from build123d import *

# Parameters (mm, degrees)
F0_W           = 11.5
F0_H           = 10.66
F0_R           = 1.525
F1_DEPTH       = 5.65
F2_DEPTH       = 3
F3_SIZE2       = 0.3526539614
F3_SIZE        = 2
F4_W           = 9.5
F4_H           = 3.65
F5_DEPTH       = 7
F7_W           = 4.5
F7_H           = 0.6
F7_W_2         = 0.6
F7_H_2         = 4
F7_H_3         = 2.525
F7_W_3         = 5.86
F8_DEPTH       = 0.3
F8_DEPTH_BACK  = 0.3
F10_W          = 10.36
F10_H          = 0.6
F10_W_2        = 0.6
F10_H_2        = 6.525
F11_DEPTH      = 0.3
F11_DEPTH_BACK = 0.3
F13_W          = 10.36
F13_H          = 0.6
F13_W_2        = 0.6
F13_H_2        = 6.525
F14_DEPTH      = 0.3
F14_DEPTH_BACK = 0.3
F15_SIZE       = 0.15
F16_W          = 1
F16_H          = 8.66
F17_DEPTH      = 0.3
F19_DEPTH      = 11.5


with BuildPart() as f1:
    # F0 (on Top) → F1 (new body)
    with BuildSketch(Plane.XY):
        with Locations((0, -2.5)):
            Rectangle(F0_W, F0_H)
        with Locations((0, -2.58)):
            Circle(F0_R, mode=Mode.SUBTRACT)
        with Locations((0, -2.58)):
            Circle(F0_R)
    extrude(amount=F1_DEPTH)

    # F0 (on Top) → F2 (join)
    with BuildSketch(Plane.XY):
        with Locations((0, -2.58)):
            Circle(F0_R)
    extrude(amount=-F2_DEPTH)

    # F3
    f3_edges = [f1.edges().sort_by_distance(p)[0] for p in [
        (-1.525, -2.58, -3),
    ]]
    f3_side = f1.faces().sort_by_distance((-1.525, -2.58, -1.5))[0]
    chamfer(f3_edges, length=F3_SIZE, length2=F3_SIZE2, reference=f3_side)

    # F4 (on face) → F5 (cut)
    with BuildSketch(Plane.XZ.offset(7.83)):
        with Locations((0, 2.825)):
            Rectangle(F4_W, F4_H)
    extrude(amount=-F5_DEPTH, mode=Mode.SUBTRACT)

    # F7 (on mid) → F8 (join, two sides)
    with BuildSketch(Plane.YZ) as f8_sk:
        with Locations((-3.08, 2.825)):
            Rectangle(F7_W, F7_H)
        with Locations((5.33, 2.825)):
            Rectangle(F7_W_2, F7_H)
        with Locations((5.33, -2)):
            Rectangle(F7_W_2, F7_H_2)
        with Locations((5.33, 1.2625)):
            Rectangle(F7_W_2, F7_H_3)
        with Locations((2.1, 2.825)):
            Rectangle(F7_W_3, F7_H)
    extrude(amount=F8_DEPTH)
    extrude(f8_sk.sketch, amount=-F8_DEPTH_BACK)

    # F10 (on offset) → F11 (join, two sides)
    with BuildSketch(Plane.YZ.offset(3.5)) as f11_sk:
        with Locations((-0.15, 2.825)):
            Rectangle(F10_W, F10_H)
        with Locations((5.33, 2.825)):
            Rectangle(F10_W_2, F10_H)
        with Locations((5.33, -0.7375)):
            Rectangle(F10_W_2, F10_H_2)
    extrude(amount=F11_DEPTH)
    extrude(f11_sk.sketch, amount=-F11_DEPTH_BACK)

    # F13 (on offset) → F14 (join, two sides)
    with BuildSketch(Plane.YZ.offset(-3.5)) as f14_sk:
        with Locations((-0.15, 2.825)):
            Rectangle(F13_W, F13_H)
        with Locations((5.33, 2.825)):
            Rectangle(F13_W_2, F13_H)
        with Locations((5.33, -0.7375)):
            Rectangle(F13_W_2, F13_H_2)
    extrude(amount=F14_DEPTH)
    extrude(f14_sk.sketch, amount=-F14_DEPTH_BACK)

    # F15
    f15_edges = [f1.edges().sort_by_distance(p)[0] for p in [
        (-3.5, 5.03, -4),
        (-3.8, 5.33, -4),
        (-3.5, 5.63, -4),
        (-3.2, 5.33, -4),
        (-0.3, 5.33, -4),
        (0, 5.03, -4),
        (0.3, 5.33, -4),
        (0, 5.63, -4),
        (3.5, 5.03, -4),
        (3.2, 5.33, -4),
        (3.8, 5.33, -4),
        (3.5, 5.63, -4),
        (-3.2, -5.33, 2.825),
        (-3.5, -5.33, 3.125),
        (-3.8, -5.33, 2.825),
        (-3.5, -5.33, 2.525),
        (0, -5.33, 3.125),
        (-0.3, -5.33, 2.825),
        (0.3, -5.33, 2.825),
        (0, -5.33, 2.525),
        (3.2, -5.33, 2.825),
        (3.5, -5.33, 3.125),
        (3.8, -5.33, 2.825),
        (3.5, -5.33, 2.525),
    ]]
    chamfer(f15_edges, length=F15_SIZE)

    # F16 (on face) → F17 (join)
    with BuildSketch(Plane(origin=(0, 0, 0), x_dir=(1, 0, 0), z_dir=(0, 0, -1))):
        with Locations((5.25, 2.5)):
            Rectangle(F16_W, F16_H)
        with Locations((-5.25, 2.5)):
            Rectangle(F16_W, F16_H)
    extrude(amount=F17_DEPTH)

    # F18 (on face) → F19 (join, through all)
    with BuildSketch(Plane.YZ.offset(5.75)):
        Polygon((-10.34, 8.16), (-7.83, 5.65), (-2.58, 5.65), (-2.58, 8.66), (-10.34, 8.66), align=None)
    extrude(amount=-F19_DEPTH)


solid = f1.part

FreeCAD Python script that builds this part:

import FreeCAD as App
import Part
import Sketcher
Q = App.Units.Quantity


def edges_at(feature, points):
    """Names of the edges that pass closest to the given points."""
    edges = feature.Shape.Edges
    near = lambda p: min(range(len(edges)), key=lambda i: edges[i].distToShape(Part.Vertex(*p))[0])
    return sorted({f"Edge{near(p) + 1}" for p in points})


def add_polygon(sketch, points):
    """Adds a closed chain of lines whose ends are joined by coincident constraints."""
    first, n = sketch.GeometryCount, len(points)
    for a, b in zip(points, points[1:] + points[:1]):
        sketch.addGeometry(Part.LineSegment(App.Vector(*a, 0), App.Vector(*b, 0)), False)
    for i in range(n):
        sketch.addConstraint(Sketcher.Constraint("Coincident", first + i, 2, first + (i + 1) % n, 1))

doc = App.newDocument("Part")
body = doc.addObject("PartDesign::Body", "Body")

# Sketch on XY plane
sketch1 = doc.addObject("Sketcher::SketchObject", "Sketch")
body.addObject(sketch1)
sketch1.AttachmentSupport = (doc.XY_Plane, [""])
sketch1.MapMode = "FlatFace"
add_polygon(sketch1, [(-6, 3), (-6, -8), (6, -8), (6, 3)])  # lines 0-3
sketch1.addConstraint(Sketcher.Constraint("Vertical", 0))
sketch1.addConstraint(Sketcher.Constraint("Horizontal", 1))
sketch1.addConstraint(Sketcher.Constraint("Vertical", 2))
sketch1.addConstraint(Sketcher.Constraint("Horizontal", 3))
sketch1.addConstraint(Sketcher.Constraint("DistanceX", 1, 1, 1, 2, 11.5))
sketch1.addConstraint(Sketcher.Constraint("DistanceY", 0, 2, 0, 1, 10.66))
sketch1.addConstraint(Sketcher.Constraint("DistanceX", 0, 2, -1, 1, 5.75))
sketch1.addConstraint(Sketcher.Constraint("DistanceY", 0, 2, -1, 1, 7.83))
pad1 = doc.addObject("PartDesign::Pad", "Pad")
body.addObject(pad1)
pad1.Profile = sketch1
pad1.Length = 5.65

# Sketch on XY plane
sketch2 = doc.addObject("Sketcher::SketchObject", "Sketch001")
body.addObject(sketch2)
sketch2.AttachmentSupport = (doc.XY_Plane, [""])
sketch2.MapMode = "FlatFace"
sketch2.addGeometry(Part.Circle(App.Vector(0, -2.6, 0), App.Vector(0, 0, 1), 1.5), False)
sketch2.addConstraint(Sketcher.Constraint("PointOnObject", 0, 3, -2))
sketch2.addConstraint(Sketcher.Constraint("Diameter", 0, 3.05))
sketch2.addConstraint(Sketcher.Constraint("DistanceY", 0, 3, -1, 1, 2.58))
pad2 = doc.addObject("PartDesign::Pad", "Pad001")
body.addObject(pad2)
pad2.Profile = sketch2
pad2.Length = 3
pad2.Reversed = True
doc.recompute()

chamfer = doc.addObject("PartDesign::Chamfer", "Chamfer")
body.addObject(chamfer)
chamfer.Base = (pad2, edges_at(pad2, [(-1.525, -2.58, -3)]))
chamfer.ChamferType = "Two distances"
chamfer.Size = 2
chamfer.Size2 = 0.352654

# Sketch on XZ plane
sketch3 = doc.addObject("Sketcher::SketchObject", "Sketch002")
body.addObject(sketch3)
sketch3.AttachmentSupport = (doc.XZ_Plane, [""])
sketch3.MapMode = "FlatFace"
sketch3.AttachmentOffset = App.Placement(App.Vector(0, 0, 7.83), App.Rotation())
add_polygon(sketch3, [(-4.8, 4.7), (-4.8, 1), (4.8, 1), (4.8, 4.7)])  # lines 0-3
sketch3.addConstraint(Sketcher.Constraint("Vertical", 0))
sketch3.addConstraint(Sketcher.Constraint("Horizontal", 1))
sketch3.addConstraint(Sketcher.Constraint("Vertical", 2))
sketch3.addConstraint(Sketcher.Constraint("Horizontal", 3))
sketch3.addConstraint(Sketcher.Constraint("DistanceX", 1, 1, 1, 2, 9.5))
sketch3.addConstraint(Sketcher.Constraint("DistanceY", -1, 1, 0, 2, 1.0))
sketch3.addConstraint(Sketcher.Constraint("DistanceY", 0, 2, 0, 1, 3.65))
sketch3.addConstraint(Sketcher.Constraint("DistanceX", 0, 2, -1, 1, 4.75))
pocket1 = doc.addObject("PartDesign::Pocket", "Pocket")
body.addObject(pocket1)
pocket1.Profile = sketch3
pocket1.Length = 7

# Sketch on YZ plane
sketch4 = doc.addObject("Sketcher::SketchObject", "Sketch003")
body.addObject(sketch4)
sketch4.AttachmentSupport = (doc.YZ_Plane, [""])
sketch4.MapMode = "FlatFace"
add_polygon(sketch4, [(-5.3, 3.1), (-5.3, 2.5), (5, 2.5), (5, -4), (5.6, -4), (5.6, 3.1)])  # lines 0-5
sketch4.addConstraint(Sketcher.Constraint("Vertical", 0))
sketch4.addConstraint(Sketcher.Constraint("Horizontal", 1))
sketch4.addConstraint(Sketcher.Constraint("Vertical", 2))
sketch4.addConstraint(Sketcher.Constraint("Horizontal", 3))
sketch4.addConstraint(Sketcher.Constraint("Vertical", 4))
sketch4.addConstraint(Sketcher.Constraint("Horizontal", 5))
sketch4.addConstraint(Sketcher.Constraint("Equal", 3, 0))
sketch4.addConstraint(Sketcher.Constraint("DistanceX", 3, 1, 3, 2, 0.6))
sketch4.addConstraint(Sketcher.Constraint("DistanceY", 2, 2, -1, 1, 4.0))
sketch4.addConstraint(Sketcher.Constraint("DistanceX", 1, 1, 1, 2, 10.36))
sketch4.addConstraint(Sketcher.Constraint("DistanceY", 2, 2, 2, 1, 6.525))
sketch4.addConstraint(Sketcher.Constraint("DistanceX", 0, 2, -1, 1, 5.33))
pad3 = doc.addObject("PartDesign::Pad", "Pad002")
body.addObject(pad3)
pad3.Profile = sketch4
pad3.Type = "TwoLengths"
pad3.Length = 0.3
pad3.Length2 = 0.3

# Sketch on YZ plane
sketch5 = doc.addObject("Sketcher::SketchObject", "Sketch004")
body.addObject(sketch5)
sketch5.AttachmentSupport = (doc.YZ_Plane, [""])
sketch5.MapMode = "FlatFace"
sketch5.AttachmentOffset = App.Placement(App.Vector(0, 0, 3.5), App.Rotation())
add_polygon(sketch5, [(-5.3, 3.1), (-5.3, 2.5), (5, 2.5), (5, -4), (5.6, -4), (5.6, 3.1)])  # lines 0-5
sketch5.addConstraint(Sketcher.Constraint("Vertical", 0))
sketch5.addConstraint(Sketcher.Constraint("Horizontal", 1))
sketch5.addConstraint(Sketcher.Constraint("Vertical", 2))
sketch5.addConstraint(Sketcher.Constraint("Horizontal", 3))
sketch5.addConstraint(Sketcher.Constraint("Vertical", 4))
sketch5.addConstraint(Sketcher.Constraint("Horizontal", 5))
sketch5.addConstraint(Sketcher.Constraint("Equal", 3, 0))
sketch5.addConstraint(Sketcher.Constraint("DistanceX", 3, 1, 3, 2, 0.6))
sketch5.addConstraint(Sketcher.Constraint("DistanceY", 2, 2, -1, 1, 4.0))
sketch5.addConstraint(Sketcher.Constraint("DistanceX", 1, 1, 1, 2, 10.36))
sketch5.addConstraint(Sketcher.Constraint("DistanceY", 2, 2, 2, 1, 6.525))
sketch5.addConstraint(Sketcher.Constraint("DistanceX", 0, 2, -1, 1, 5.33))
pad4 = doc.addObject("PartDesign::Pad", "Pad003")
body.addObject(pad4)
pad4.Profile = sketch5
pad4.Type = "TwoLengths"
pad4.Length = 0.3
pad4.Length2 = 0.3

# Sketch on YZ plane
sketch6 = doc.addObject("Sketcher::SketchObject", "Sketch005")
body.addObject(sketch6)
sketch6.AttachmentSupport = (doc.YZ_Plane, [""])
sketch6.MapMode = "FlatFace"
sketch6.AttachmentOffset = App.Placement(App.Vector(0, 0, -3.5), App.Rotation())
add_polygon(sketch6, [(-5.3, 3.1), (-5.3, 2.5), (5, 2.5), (5, -4), (5.6, -4), (5.6, 3.1)])  # lines 0-5
sketch6.addConstraint(Sketcher.Constraint("Vertical", 0))
sketch6.addConstraint(Sketcher.Constraint("Horizontal", 1))
sketch6.addConstraint(Sketcher.Constraint("Vertical", 2))
sketch6.addConstraint(Sketcher.Constraint("Horizontal", 3))
sketch6.addConstraint(Sketcher.Constraint("Vertical", 4))
sketch6.addConstraint(Sketcher.Constraint("Horizontal", 5))
sketch6.addConstraint(Sketcher.Constraint("Equal", 3, 0))
sketch6.addConstraint(Sketcher.Constraint("DistanceX", 3, 1, 3, 2, 0.6))
sketch6.addConstraint(Sketcher.Constraint("DistanceY", 2, 2, -1, 1, 4.0))
sketch6.addConstraint(Sketcher.Constraint("DistanceX", 1, 1, 1, 2, 10.36))
sketch6.addConstraint(Sketcher.Constraint("DistanceY", 2, 2, 2, 1, 6.525))
sketch6.addConstraint(Sketcher.Constraint("DistanceX", 0, 2, -1, 1, 5.33))
pad5 = doc.addObject("PartDesign::Pad", "Pad004")
body.addObject(pad5)
pad5.Profile = sketch6
pad5.Type = "TwoLengths"
pad5.Length = 0.3
pad5.Length2 = 0.3
doc.recompute()

chamfer2 = doc.addObject("PartDesign::Chamfer", "Chamfer001")
body.addObject(chamfer2)
chamfer2.Base = (pad5, edges_at(pad5, [
    (-3.5, 5.03, -4),
    (-3.8, 5.33, -4),
    (-3.5, 5.63, -4),
    (-3.2, 5.33, -4),
    (-0.3, 5.33, -4),
    (0, 5.03, -4),
    (0.3, 5.33, -4),
    (0, 5.63, -4),
    (3.5, 5.03, -4),
    (3.2, 5.33, -4),
    (3.8, 5.33, -4),
    (3.5, 5.63, -4),
    (-3.2, -5.33, 2.825),
    (-3.5, -5.33, 3.125),
    (-3.8, -5.33, 2.825),
    (-3.5, -5.33, 2.525),
    (0, -5.33, 3.125),
    (-0.3, -5.33, 2.825),
    (0.3, -5.33, 2.825),
    (0, -5.33, 2.525),
    (3.2, -5.33, 2.825),
    (3.5, -5.33, 3.125),
    (3.8, -5.33, 2.825),
    (3.5, -5.33, 2.525),
]))
chamfer2.Size = 0.15

# Sketch on XY plane
sketch7 = doc.addObject("Sketcher::SketchObject", "Sketch006")
body.addObject(sketch7)
sketch7.AttachmentSupport = (doc.XY_Plane, [""])
sketch7.MapMode = "FlatFace"
add_polygon(sketch7, [(4.8, -6.8), (4.8, 1.8), (5.8, 1.8), (5.8, -6.8)])  # lines 0-3
add_polygon(sketch7, [(-5.8, -6.8), (-5.8, 1.8), (-4.8, 1.8), (-4.8, -6.8)])  # lines 4-7
sketch7.addConstraint(Sketcher.Constraint("Vertical", 0))
sketch7.addConstraint(Sketcher.Constraint("Horizontal", 1))
sketch7.addConstraint(Sketcher.Constraint("Vertical", 2))
sketch7.addConstraint(Sketcher.Constraint("Horizontal", 3))
sketch7.addConstraint(Sketcher.Constraint("Vertical", 4))
sketch7.addConstraint(Sketcher.Constraint("Horizontal", 5))
sketch7.addConstraint(Sketcher.Constraint("Vertical", 6))
sketch7.addConstraint(Sketcher.Constraint("Horizontal", 7))
sketch7.addConstraint(Sketcher.Constraint("Symmetric", 1, 2, 4, 2, -2))
sketch7.addConstraint(Sketcher.Constraint("Symmetric", 3, 2, 6, 2, -2))
sketch7.addConstraint(Sketcher.Constraint("DistanceX", 1, 1, 1, 2, 1.0))
sketch7.addConstraint(Sketcher.Constraint("DistanceY", 0, 1, 0, 2, 8.66))
sketch7.addConstraint(Sketcher.Constraint("DistanceX", 4, 2, 0, 2, 10.5))
sketch7.addConstraint(Sketcher.Constraint("DistanceY", -1, 1, 0, 2, 1.83))
pad6 = doc.addObject("PartDesign::Pad", "Pad005")
body.addObject(pad6)
pad6.Profile = sketch7
pad6.Length = 0.3
pad6.Reversed = True

# Sketch on YZ plane
sketch8 = doc.addObject("Sketcher::SketchObject", "Sketch007")
body.addObject(sketch8)
sketch8.AttachmentSupport = (doc.YZ_Plane, [""])
sketch8.MapMode = "FlatFace"
sketch8.AttachmentOffset = App.Placement(App.Vector(0, 0, 5.75), App.Rotation())
add_polygon(sketch8, [(-10.3, 8.2), (-7.8, 5.7), (-2.6, 5.7), (-2.6, 8.7), (-10.3, 8.7)])  # lines 0-4
sketch8.addConstraint(Sketcher.Constraint("Horizontal", 1))
sketch8.addConstraint(Sketcher.Constraint("Vertical", 2))
sketch8.addConstraint(Sketcher.Constraint("Horizontal", 3))
sketch8.addConstraint(Sketcher.Constraint("Vertical", 4))
sketch8.addConstraint(Sketcher.Constraint("Angle", 0, Q("-45 deg")))
sketch8.addConstraint(Sketcher.Constraint("DistanceY", 4, 2, 4, 1, 0.5))
sketch8.addConstraint(Sketcher.Constraint("DistanceX", 1, 1, 1, 2, 5.25))
sketch8.addConstraint(Sketcher.Constraint("DistanceX", 3, 2, 3, 1, 7.76))
sketch8.addConstraint(Sketcher.Constraint("DistanceX", 0, 2, -1, 1, 7.83))
sketch8.addConstraint(Sketcher.Constraint("DistanceY", -1, 1, 0, 2, 5.65))
pad7 = doc.addObject("PartDesign::Pad", "Pad006")
body.addObject(pad7)
pad7.Profile = sketch8
pad7.Length = 11.5
pad7.Reversed = True

doc.recompute()
